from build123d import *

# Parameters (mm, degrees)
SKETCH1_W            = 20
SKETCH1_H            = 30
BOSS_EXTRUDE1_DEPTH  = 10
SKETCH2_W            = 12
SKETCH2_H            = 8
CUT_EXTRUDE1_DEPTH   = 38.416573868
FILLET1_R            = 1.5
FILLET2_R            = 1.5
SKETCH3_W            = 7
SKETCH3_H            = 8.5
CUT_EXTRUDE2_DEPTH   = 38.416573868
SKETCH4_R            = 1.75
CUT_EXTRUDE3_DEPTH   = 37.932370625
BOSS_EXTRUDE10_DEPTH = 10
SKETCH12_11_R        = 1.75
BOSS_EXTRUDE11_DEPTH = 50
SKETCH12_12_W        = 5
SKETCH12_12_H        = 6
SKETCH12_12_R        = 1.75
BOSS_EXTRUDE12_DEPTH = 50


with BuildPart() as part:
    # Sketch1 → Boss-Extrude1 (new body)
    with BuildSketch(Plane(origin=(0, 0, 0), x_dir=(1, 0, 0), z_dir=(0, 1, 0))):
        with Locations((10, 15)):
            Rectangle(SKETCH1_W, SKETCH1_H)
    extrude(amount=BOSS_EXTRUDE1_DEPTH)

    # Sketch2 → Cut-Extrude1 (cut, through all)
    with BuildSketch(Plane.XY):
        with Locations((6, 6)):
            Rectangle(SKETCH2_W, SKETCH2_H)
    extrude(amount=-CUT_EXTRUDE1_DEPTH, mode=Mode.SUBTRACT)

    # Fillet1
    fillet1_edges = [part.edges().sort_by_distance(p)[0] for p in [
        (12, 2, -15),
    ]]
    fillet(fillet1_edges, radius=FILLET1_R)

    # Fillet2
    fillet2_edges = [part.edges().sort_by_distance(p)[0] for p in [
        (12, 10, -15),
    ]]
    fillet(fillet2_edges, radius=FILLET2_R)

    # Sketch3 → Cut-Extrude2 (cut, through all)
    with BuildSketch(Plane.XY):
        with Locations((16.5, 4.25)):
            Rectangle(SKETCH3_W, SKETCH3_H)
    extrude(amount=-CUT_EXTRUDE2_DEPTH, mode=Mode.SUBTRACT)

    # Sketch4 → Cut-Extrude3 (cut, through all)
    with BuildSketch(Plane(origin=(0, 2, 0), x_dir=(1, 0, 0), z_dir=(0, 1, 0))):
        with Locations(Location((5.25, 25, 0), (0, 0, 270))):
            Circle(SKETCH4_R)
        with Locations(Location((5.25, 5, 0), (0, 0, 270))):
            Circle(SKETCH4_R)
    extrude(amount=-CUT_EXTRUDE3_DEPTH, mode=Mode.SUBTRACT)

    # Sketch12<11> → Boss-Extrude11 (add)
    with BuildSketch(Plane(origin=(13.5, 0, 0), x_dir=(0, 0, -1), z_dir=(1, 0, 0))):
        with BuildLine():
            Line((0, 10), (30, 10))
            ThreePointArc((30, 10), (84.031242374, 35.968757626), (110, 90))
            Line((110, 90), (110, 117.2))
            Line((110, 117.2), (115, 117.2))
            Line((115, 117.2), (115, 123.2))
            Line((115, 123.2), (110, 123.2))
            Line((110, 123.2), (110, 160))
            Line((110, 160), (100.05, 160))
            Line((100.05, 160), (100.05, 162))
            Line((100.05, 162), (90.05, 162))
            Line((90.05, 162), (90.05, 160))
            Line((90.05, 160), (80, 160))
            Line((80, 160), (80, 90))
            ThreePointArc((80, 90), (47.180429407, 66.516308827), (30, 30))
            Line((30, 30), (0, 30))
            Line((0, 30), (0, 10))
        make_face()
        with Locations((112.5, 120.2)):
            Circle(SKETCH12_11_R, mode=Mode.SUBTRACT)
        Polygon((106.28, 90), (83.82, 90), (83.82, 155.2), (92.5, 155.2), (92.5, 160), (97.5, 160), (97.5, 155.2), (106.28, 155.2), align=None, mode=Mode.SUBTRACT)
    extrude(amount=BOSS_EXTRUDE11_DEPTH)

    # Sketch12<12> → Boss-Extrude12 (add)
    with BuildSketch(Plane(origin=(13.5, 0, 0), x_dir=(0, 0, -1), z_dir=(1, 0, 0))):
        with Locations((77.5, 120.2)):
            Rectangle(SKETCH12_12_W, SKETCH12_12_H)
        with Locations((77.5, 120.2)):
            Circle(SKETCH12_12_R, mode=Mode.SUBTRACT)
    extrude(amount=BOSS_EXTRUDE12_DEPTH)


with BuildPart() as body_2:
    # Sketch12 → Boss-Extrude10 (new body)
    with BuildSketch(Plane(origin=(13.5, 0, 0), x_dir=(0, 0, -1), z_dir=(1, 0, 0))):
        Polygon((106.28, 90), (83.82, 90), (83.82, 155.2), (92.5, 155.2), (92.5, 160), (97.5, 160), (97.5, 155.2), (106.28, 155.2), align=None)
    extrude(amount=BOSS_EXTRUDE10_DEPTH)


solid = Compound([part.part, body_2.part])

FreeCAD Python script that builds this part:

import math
import FreeCAD as App
import Part
import Sketcher

V = App.Vector


def edges_at(feature, points):
    """Names of the edges that pass closest to the given points."""
    edges = feature.Shape.Edges
    near = lambda p: min(range(len(edges)), key=lambda i: edges[i].distToShape(Part.Vertex(*p))[0])
    return sorted({f"Edge{near(p) + 1}" for p in points})

doc = App.newDocument("Part")
body = doc.addObject("PartDesign::Body", "Body")

# Sketch on XZ plane
sketch1 = body.newObject("Sketcher::SketchObject", "Sketch")
sketch1.AttachmentSupport = (doc.getObject("XZ_Plane"), [""])
sketch1.MapMode = "FlatFace"
sketch1.addGeometry([
    Part.LineSegment(V(0, -30, 0), V(0, 0, 0)),
    Part.LineSegment(V(0, 0, 0), V(20, 0, 0)),
    Part.LineSegment(V(20, 0, 0), V(20, -30, 0)),
    Part.LineSegment(V(20, -30, 0), V(0, -30, 0)),
], False)
sketch1.addConstraint([
    Sketcher.Constraint("Coincident", 0, 2, 1, 1),
    Sketcher.Constraint("Coincident", 1, 2, 2, 1),
    Sketcher.Constraint("Coincident", 2, 2, 3, 1),
    Sketcher.Constraint("Coincident", 3, 2, 0, 1),
    Sketcher.Constraint("Vertical", 0),
    Sketcher.Constraint("Horizontal", 1),
    Sketcher.Constraint("Vertical", 2),
    Sketcher.Constraint("Horizontal", 3),
    Sketcher.Constraint("Coincident", 0, 2, -1, 1),
    Sketcher.Constraint("DistanceX", 1, 1, 1, 2, 20.0),
    Sketcher.Constraint("DistanceY", 0, 1, 0, 2, 30.0),
])
pad1 = body.newObject("PartDesign::Pad", "Pad")
pad1.Profile = sketch1
pad1.Length = 10
pad1.Reversed = True

# Sketch on XY plane
sketch2 = body.newObject("Sketcher::SketchObject", "Sketch001")
sketch2.AttachmentSupport = (doc.getObject("XY_Plane"), [""])
sketch2.MapMode = "FlatFace"
sketch2.addGeometry([
    Part.LineSegment(V(0, 10, 0), V(0, 2, 0)),
    Part.LineSegment(V(0, 2, 0), V(12, 2, 0)),
    Part.LineSegment(V(12, 2, 0), V(12, 10, 0)),
    Part.LineSegment(V(12, 10, 0), V(0, 10, 0)),
], False)
sketch2.addConstraint([
    Sketcher.Constraint("Coincident", 0, 2, 1, 1),
    Sketcher.Constraint("Coincident", 1, 2, 2, 1),
    Sketcher.Constraint("Coincident", 2, 2, 3, 1),
    Sketcher.Constraint("Coincident", 3, 2, 0, 1),
    Sketcher.Constraint("Vertical", 0),
    Sketcher.Constraint("Horizontal", 1),
    Sketcher.Constraint("Vertical", 2),
    Sketcher.Constraint("Horizontal", 3),
    Sketcher.Constraint("PointOnObject", 0, 2, -2),
    Sketcher.Constraint("DistanceX", 1, 1, 1, 2, 12.0),
    Sketcher.Constraint("DistanceY", 0, 2, 0, 1, 8.0),
    Sketcher.Constraint("DistanceY", -1, 1, 0, 2, 2.0),
])
pocket1 = body.newObject("PartDesign::Pocket", "Pocket")
pocket1.Profile = sketch2
pocket1.Type = "ThroughAll"
doc.recompute()

fillet = body.newObject("PartDesign::Fillet", "Fillet")
fillet.Base = (pocket1, edges_at(pocket1, [(12, 2, -15)]))
fillet.Radius = 1.5
doc.recompute()

fillet2 = body.newObject("PartDesign::Fillet", "Fillet001")
fillet2.Base = (fillet, edges_at(fillet, [(12, 10, -15)]))
fillet2.Radius = 1.5

# Sketch on XY plane
sketch3 = body.newObject("Sketcher::SketchObject", "Sketch002")
sketch3.AttachmentSupport = (doc.getObject("XY_Plane"), [""])
sketch3.MapMode = "FlatFace"
sketch3.addGeometry([
    Part.LineSegment(V(13, 8.5, 0), V(13, 0, 0)),
    Part.LineSegment(V(13, 0, 0), V(20, 0, 0)),
    Part.LineSegment(V(20, 0, 0), V(20, 8.5, 0)),
    Part.LineSegment(V(20, 8.5, 0), V(13, 8.5, 0)),
], False)
sketch3.addConstraint([
    Sketcher.Constraint("Coincident", 0, 2, 1, 1),
    Sketcher.Constraint("Coincident", 1, 2, 2, 1),
    Sketcher.Constraint("Coincident", 2, 2, 3, 1),
    Sketcher.Constraint("Coincident", 3, 2, 0, 1),
    Sketcher.Constraint("Vertical", 0),
    Sketcher.Constraint("Horizontal", 1),
    Sketcher.Constraint("Vertical", 2),
    Sketcher.Constraint("Horizontal", 3),
    Sketcher.Constraint("PointOnObject", 0, 2, -1),
    Sketcher.Constraint("DistanceX", 1, 1, 1, 2, 7.0),
    Sketcher.Constraint("DistanceY", 0, 2, 0, 1, 8.5),
    Sketcher.Constraint("DistanceX", -1, 1, 0, 2, 13.0),
])
pocket2 = body.newObject("PartDesign::Pocket", "Pocket001")
pocket2.Profile = sketch3
pocket2.Type = "ThroughAll"

# Sketch on XZ plane
sketch4 = body.newObject("Sketcher::SketchObject", "Sketch003")
sketch4.AttachmentSupport = (doc.getObject("XZ_Plane"), [""])
sketch4.MapMode = "FlatFace"
sketch4.AttachmentOffset = App.Placement(V(0, 0, -2), App.Rotation())
sketch4.addGeometry([
    Part.Circle(V(5.25, -25, 0), V(0, 0, 1), 1.75),
    Part.Circle(V(5.25, -5, 0), V(0, 0, 1), 1.75),
], False)
sketch4.addConstraint([
    Sketcher.Constraint("Equal", 0, 1),
    Sketcher.Constraint("Vertical", 0, 3, 1, 3),
    Sketcher.Constraint("Diameter", 0, 3.5),
    Sketcher.Constraint("DistanceY", 0, 3, -1, 1, 25.0),
    Sketcher.Constraint("DistanceY", 1, 3, -1, 1, 5.0),
    Sketcher.Constraint("DistanceX", -1, 1, 0, 3, 5.25),
])
pocket3 = body.newObject("PartDesign::Pocket", "Pocket002")
pocket3.Profile = sketch4
pocket3.Type = "ThroughAll"
pocket3.Reversed = True

# Sketch on YZ plane
sketch5 = body.newObject("Sketcher::SketchObject", "Sketch004")
sketch5.AttachmentSupport = (doc.getObject("YZ_Plane"), [""])
sketch5.MapMode = "FlatFace"
sketch5.AttachmentOffset = App.Placement(V(0, 0, 13.5), App.Rotation())
sketch5.addGeometry([
    Part.LineSegment(V(10, 0, 0), V(10, -30, 0)),  # 0
    Part.ArcOfCircle(Part.Circle(V(100, -20, 0), V(0, 0, 1), 90.553851), math.radians(-173.659808), math.radians(-96.340192)),  # 1
    Part.LineSegment(V(90, -110, 0), V(117.2, -110, 0)),  # 2
    Part.LineSegment(V(117.2, -110, 0), V(117.2, -115, 0)),  # 3
    Part.LineSegment(V(117.2, -115, 0), V(123.2, -115, 0)),  # 4
    Part.LineSegment(V(123.2, -115, 0), V(123.2, -110, 0)),  # 5
    Part.LineSegment(V(123.2, -110, 0), V(160, -110, 0)),  # 6
    Part.LineSegment(V(160, -110, 0), V(160, -100.05, 0)),  # 7
    Part.LineSegment(V(160, -100.05, 0), V(162, -100.05, 0)),  # 8
    Part.LineSegment(V(162, -100.05, 0), V(162, -90.05, 0)),  # 9
    Part.LineSegment(V(162, -90.05, 0), V(160, -90.05, 0)),  # 10
    Part.LineSegment(V(160, -90.05, 0), V(160, -80, 0)),  # 11
    Part.LineSegment(V(160, -80, 0), V(90, -80, 0)),  # 12
    Part.ArcOfCircle(Part.Circle(V(15.301557, -108.638132, 0), V(0, 0, 1), 80), math.radians(20.975987), math.radians(79.412871)),  # 13
    Part.LineSegment(V(30, -30, 0), V(30, 0, 0)),  # 14
    Part.LineSegment(V(30, 0, 0), V(10, 0, 0)),  # 15
    Part.Circle(V(120.2, -112.5, 0), V(0, 0, 1), 1.75),  # 16
    Part.LineSegment(V(155.2, -106.28, 0), V(90, -106.28, 0)),  # 17
    Part.LineSegment(V(90, -106.28, 0), V(90, -83.82, 0)),  # 18
    Part.LineSegment(V(90, -83.82, 0), V(155.2, -83.82, 0)),  # 19
    Part.LineSegment(V(155.2, -83.82, 0), V(155.2, -92.5, 0)),  # 20
    Part.LineSegment(V(155.2, -92.5, 0), V(160, -92.5, 0)),  # 21
    Part.LineSegment(V(160, -92.5, 0), V(160, -97.5, 0)),  # 22
    Part.LineSegment(V(160, -97.5, 0), V(155.2, -97.5, 0)),  # 23
    Part.LineSegment(V(155.2, -97.5, 0), V(155.2, -106.28, 0)),  # 24
], False)
sketch5.addConstraint([
    Sketcher.Constraint("Coincident", 0, 2, 1, 1),
    Sketcher.Constraint("Coincident", 1, 2, 2, 1),
    Sketcher.Constraint("Coincident", 2, 2, 3, 1),
    Sketcher.Constraint("Coincident", 3, 2, 4, 1),
    Sketcher.Constraint("Coincident", 4, 2, 5, 1),
    Sketcher.Constraint("Coincident", 5, 2, 6, 1),
    Sketcher.Constraint("Coincident", 6, 2, 7, 1),
    Sketcher.Constraint("Coincident", 7, 2, 8, 1),
    Sketcher.Constraint("Coincident", 8, 2, 9, 1),
    Sketcher.Constraint("Coincident", 9, 2, 10, 1),
    Sketcher.Constraint("Coincident", 10, 2, 11, 1),
    Sketcher.Constraint("Coincident", 11, 2, 12, 1),
    Sketcher.Constraint("Coincident", 12, 2, 13, 1),
    Sketcher.Constraint("Coincident", 13, 2, 14, 1),
    Sketcher.Constraint("Coincident", 14, 2, 15, 1),
    Sketcher.Constraint("Coincident", 15, 2, 0, 1),
    Sketcher.Constraint("Coincident", 17, 2, 18, 1),
    Sketcher.Constraint("Coincident", 18, 2, 19, 1),
    Sketcher.Constraint("Coincident", 19, 2, 20, 1),
    Sketcher.Constraint("Coincident", 20, 2, 21, 1),
    Sketcher.Constraint("Coincident", 21, 2, 22, 1),
    Sketcher.Constraint("Coincident", 22, 2, 23, 1),
    Sketcher.Constraint("Coincident", 23, 2, 24, 1),
    Sketcher.Constraint("Coincident", 24, 2, 17, 1),
    Sketcher.Constraint("Vertical", 0),
    Sketcher.Constraint("Horizontal", 2),
    Sketcher.Constraint("Vertical", 3),
    Sketcher.Constraint("Horizontal", 4),
    Sketcher.Constraint("Vertical", 5),
    Sketcher.Constraint("Horizontal", 6),
    Sketcher.Constraint("Vertical", 7),
    Sketcher.Constraint("Horizontal", 8),
    Sketcher.Constraint("Vertical", 9),
    Sketcher.Constraint("Horizontal", 10),
    Sketcher.Constraint("Vertical", 11),
    Sketcher.Constraint("Horizontal", 12),
    Sketcher.Constraint("Vertical", 14),
    Sketcher.Constraint("Horizontal", 15),
    Sketcher.Constraint("Horizontal", 17),
    Sketcher.Constraint("Vertical", 18),
    Sketcher.Constraint("Horizontal", 19),
    Sketcher.Constraint("Vertical", 20),
    Sketcher.Constraint("Horizontal", 21),
    Sketcher.Constraint("Vertical", 22),
    Sketcher.Constraint("Horizontal", 23),
    Sketcher.Constraint("Vertical", 24),
    Sketcher.Constraint("PointOnObject", 14, 2, -1),
    Sketcher.Constraint("Horizontal", 2, 2, 5, 2),
    Sketcher.Constraint("Horizontal", 0, 2, 13, 2),
    Sketcher.Constraint("Vertical", 7, 2, 10, 2),
    Sketcher.Constraint("Vertical", 1, 2, 12, 2),
    Sketcher.Constraint("Vertical", 12, 2, 17, 2),
    Sketcher.Constraint("Vertical", 11, 2, 21, 2),
    Sketcher.Constraint("Vertical", 20, 2, 23, 2),
    Sketcher.Constraint("Equal", 5, 22),
    Sketcher.Constraint("Radius", 13, 80.0),
    Sketcher.Constraint("Diameter", 16, 3.5),
    Sketcher.Constraint("DistanceX", 4, 1, 4, 2, 6.0),
    Sketcher.Constraint("DistanceX", 8, 1, 8, 2, 2.0),
    Sketcher.Constraint("DistanceX", 12, 2, 12, 1, 70.0),
    Sketcher.Constraint("DistanceX", 15, 2, 15, 1, 20.0),
    Sketcher.Constraint("DistanceY", 0, 2, 0, 1, 30.0),
    Sketcher.Constraint("DistanceY", 3, 2, 3, 1, 5.0),
    Sketcher.Constraint("DistanceY", 9, 1, 9, 2, 10.0),
    Sketcher.Constraint("DistanceX", 2, 1, 2, 2, 27.2),
    Sketcher.Constraint("DistanceX", 17, 2, 17, 1, 65.2),
    Sketcher.Constraint("DistanceX", -1, 1, 1, 3, 100.0),
    Sketcher.Constraint("DistanceY", 1, 3, -1, 1, 20.0),
    Sketcher.Constraint("DistanceX", -1, 1, 0, 2, 10.0),
    Sketcher.Constraint("DistanceY", 2, 2, -1, 1, 110.0),
    Sketcher.Constraint("DistanceY", 11, 2, -1, 1, 80.0),
    Sketcher.Constraint("DistanceX", 2, 2, 16, 3, 3.0),
    Sketcher.Constraint("DistanceY", 7, 1, 7, 2, 9.95),
    Sketcher.Constraint("DistanceY", 18, 1, 18, 2, 22.46),
    Sketcher.Constraint("DistanceY", 20, 2, 20, 1, 8.68),
    Sketcher.Constraint("DistanceY", 16, 3, -1, 1, 112.5),
    Sketcher.Constraint("DistanceY", 20, 2, -1, 1, 92.5),
])
pad2 = body.newObject("PartDesign::Pad", "Pad001")
pad2.Profile = sketch5
pad2.Length = 50

# Sketch on YZ plane
sketch6 = body.newObject("Sketcher::SketchObject", "Sketch005")
sketch6.AttachmentSupport = (doc.getObject("YZ_Plane"), [""])
sketch6.MapMode = "FlatFace"
sketch6.AttachmentOffset = App.Placement(V(0, 0, 13.5), App.Rotation())
sketch6.addGeometry([
    Part.LineSegment(V(123.2, -75, 0), V(117.2, -75, 0)),  # 0
    Part.LineSegment(V(117.2, -75, 0), V(117.2, -80, 0)),  # 1
    Part.LineSegment(V(117.2, -80, 0), V(123.2, -80, 0)),  # 2
    Part.LineSegment(V(123.2, -80, 0), V(123.2, -75, 0)),  # 3
    Part.Circle(V(120.2, -77.5, 0), V(0, 0, 1), 1.75),  # 4
], False)
sketch6.addConstraint([
    Sketcher.Constraint("Coincident", 0, 2, 1, 1),
    Sketcher.Constraint("Coincident", 1, 2, 2, 1),
    Sketcher.Constraint("Coincident", 2, 2, 3, 1),
    Sketcher.Constraint("Coincident", 3, 2, 0, 1),
    Sketcher.Constraint("Horizontal", 0),
    Sketcher.Constraint("Vertical", 1),
    Sketcher.Constraint("Horizontal", 2),
    Sketcher.Constraint("Vertical", 3),
    Sketcher.Constraint("Diameter", 4, 3.5),
    Sketcher.Constraint("DistanceX", 0, 2, 0, 1, 6.0),
    Sketcher.Constraint("DistanceY", 1, 2, 1, 1, 5.0),
    Sketcher.Constraint("DistanceY", 0, 2, -1, 1, 75.0),
    Sketcher.Constraint("DistanceX", 0, 2, 4, 3, 3.0),
    Sketcher.Constraint("DistanceX", -1, 1, 4, 3, 120.2),
    Sketcher.Constraint("DistanceY", 4, 3, -1, 1, 77.5),
])
pad3 = body.newObject("PartDesign::Pad", "Pad002")
pad3.Profile = sketch6
pad3.Length = 50
body2 = doc.addObject("PartDesign::Body", "Body001")

# Sketch on YZ plane
sketch7 = body2.newObject("Sketcher::SketchObject", "Sketch006")
sketch7.AttachmentSupport = (doc.getObject("YZ_Plane001"), [""])
sketch7.MapMode = "FlatFace"
sketch7.AttachmentOffset = App.Placement(V(0, 0, 13.5), App.Rotation())
sketch7.addGeometry([
    Part.LineSegment(V(90, -83.82, 0), V(90, -106.28, 0)),  # 0
    Part.LineSegment(V(90, -106.28, 0), V(155.2, -106.28, 0)),  # 1
    Part.LineSegment(V(155.2, -106.28, 0), V(155.2, -97.5, 0)),  # 2
    Part.LineSegment(V(155.2, -97.5, 0), V(160, -97.5, 0)),  # 3
    Part.LineSegment(V(160, -97.5, 0), V(160, -92.5, 0)),  # 4
    Part.LineSegment(V(160, -92.5, 0), V(155.2, -92.5, 0)),  # 5
    Part.LineSegment(V(155.2, -92.5, 0), V(155.2, -83.82, 0)),  # 6
    Part.LineSegment(V(155.2, -83.82, 0), V(90, -83.82, 0)),  # 7
], False)
sketch7.addConstraint([
    Sketcher.Constraint("Coincident", 0, 2, 1, 1),
    Sketcher.Constraint("Coincident", 1, 2, 2, 1),
    Sketcher.Constraint("Coincident", 2, 2, 3, 1),
    Sketcher.Constraint("Coincident", 3, 2, 4, 1),
    Sketcher.Constraint("Coincident", 4, 2, 5, 1),
    Sketcher.Constraint("Coincident", 5, 2, 6, 1),
    Sketcher.Constraint("Coincident", 6, 2, 7, 1),
    Sketcher.Constraint("Coincident", 7, 2, 0, 1),
    Sketcher.Constraint("Vertical", 0),
    Sketcher.Constraint("Horizontal", 1),
    Sketcher.Constraint("Vertical", 2),
    Sketcher.Constraint("Horizontal", 3),
    Sketcher.Constraint("Vertical", 4),
    Sketcher.Constraint("Horizontal", 5),
    Sketcher.Constraint("Vertical", 6),
    Sketcher.Constraint("Horizontal", 7),
    Sketcher.Constraint("Vertical", 2, 2, 5, 2),
    Sketcher.Constraint("DistanceY", 4, 1, 4, 2, 5.0),
    Sketcher.Constraint("DistanceX", 1, 1, 1, 2, 65.2),
    Sketcher.Constraint("DistanceX", 3, 1, 3, 2, 4.8),
    Sketcher.Constraint("DistanceX", -1, 1, 0, 2, 90.0),
    Sketcher.Constraint("DistanceY", 0, 2, 0, 1, 22.46),
    Sketcher.Constraint("DistanceY", 2, 1, 2, 2, 8.78),
    Sketcher.Constraint("DistanceY", 2, 2, -1, 1, 97.5),
])
pad4 = body2.newObject("PartDesign::Pad", "Pad003")
pad4.Profile = sketch7
pad4.Length = 10

doc.recompute()
